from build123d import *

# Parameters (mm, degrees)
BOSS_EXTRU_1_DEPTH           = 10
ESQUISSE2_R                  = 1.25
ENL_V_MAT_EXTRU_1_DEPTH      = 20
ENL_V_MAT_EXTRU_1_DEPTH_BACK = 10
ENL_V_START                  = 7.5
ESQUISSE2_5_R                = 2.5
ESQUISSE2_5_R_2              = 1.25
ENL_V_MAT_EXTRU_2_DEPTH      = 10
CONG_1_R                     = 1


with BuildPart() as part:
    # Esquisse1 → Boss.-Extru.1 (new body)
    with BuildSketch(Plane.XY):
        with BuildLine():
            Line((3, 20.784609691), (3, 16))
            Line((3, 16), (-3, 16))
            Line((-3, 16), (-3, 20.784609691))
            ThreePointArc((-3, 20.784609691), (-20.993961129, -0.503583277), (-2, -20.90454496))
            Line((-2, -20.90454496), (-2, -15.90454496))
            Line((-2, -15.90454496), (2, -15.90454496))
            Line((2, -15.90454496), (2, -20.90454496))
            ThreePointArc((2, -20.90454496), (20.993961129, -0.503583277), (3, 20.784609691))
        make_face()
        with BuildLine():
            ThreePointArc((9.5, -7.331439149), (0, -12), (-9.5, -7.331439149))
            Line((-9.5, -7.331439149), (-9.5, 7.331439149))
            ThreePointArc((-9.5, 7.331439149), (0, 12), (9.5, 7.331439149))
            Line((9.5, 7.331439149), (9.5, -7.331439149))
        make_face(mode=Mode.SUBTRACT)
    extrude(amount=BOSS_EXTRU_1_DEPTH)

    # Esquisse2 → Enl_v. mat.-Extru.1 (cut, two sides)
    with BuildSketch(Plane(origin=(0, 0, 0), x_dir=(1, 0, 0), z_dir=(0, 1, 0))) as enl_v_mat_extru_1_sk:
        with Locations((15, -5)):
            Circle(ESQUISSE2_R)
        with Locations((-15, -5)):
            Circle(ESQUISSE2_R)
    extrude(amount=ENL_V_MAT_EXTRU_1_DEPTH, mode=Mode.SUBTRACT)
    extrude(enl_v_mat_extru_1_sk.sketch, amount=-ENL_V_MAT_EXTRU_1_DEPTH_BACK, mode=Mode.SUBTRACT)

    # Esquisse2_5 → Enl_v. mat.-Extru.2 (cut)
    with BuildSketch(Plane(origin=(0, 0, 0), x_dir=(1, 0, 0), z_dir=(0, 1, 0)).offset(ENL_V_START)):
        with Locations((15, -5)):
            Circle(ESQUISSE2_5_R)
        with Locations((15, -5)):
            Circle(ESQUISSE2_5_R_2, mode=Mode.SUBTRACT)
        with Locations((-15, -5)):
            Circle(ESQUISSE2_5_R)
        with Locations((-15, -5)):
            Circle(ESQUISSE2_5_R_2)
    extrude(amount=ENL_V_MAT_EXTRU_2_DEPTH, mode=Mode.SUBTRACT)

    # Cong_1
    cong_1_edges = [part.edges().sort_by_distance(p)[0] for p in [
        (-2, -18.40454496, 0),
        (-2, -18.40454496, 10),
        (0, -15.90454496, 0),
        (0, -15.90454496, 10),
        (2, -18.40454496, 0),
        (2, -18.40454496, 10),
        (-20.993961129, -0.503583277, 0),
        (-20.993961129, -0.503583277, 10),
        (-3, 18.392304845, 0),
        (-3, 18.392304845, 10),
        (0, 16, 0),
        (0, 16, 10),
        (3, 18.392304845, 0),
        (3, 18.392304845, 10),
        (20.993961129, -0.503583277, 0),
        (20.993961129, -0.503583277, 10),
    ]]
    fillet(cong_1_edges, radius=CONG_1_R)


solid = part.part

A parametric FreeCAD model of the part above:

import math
import FreeCAD as App
import Part
import Sketcher

V = App.Vector


def edges_at(feature, points):
    """Names of the edges that pass closest to the given points."""
    edges = feature.Shape.Edges
    near = lambda p: min(range(len(edges)), key=lambda i: edges[i].distToShape(Part.Vertex(*p))[0])
    return sorted({f"Edge{near(p) + 1}" for p in points})

doc = App.newDocument("Part")
body = doc.addObject("PartDesign::Body", "Body")

sketch1 = body.newObject("Sketcher::SketchObject", "Sketch")
sketch1.AttachmentSupport = (doc.getObject("XY_Plane"), [""])
sketch1.MapMode = "FlatFace"
sketch1.addGeometry([
    Part.LineSegment(V(3, 20.78461, 0), V(3, 16, 0)),
    Part.LineSegment(V(3, 16, 0), V(-3, 16, 0)),
    Part.LineSegment(V(-3, 16, 0), V(-3, 20.78461, 0)),
    Part.ArcOfCircle(Part.Circle(V(0, 0, 0), V(0, 0, 1), 21), math.radians(98.213211), math.radians(264.534976)),
    Part.LineSegment(V(-2, -20.904545, 0), V(-2, -15.904545, 0)),
    Part.LineSegment(V(-2, -15.904545, 0), V(2, -15.904545, 0)),
    Part.LineSegment(V(2, -15.904545, 0), V(2, -20.904545, 0)),
    Part.ArcOfCircle(Part.Circle(V(0, 0, 0), V(0, 0, 1), 21), math.radians(-84.534976), math.radians(81.786789)),
    Part.LineSegment(V(9.5, 7.331439, 0), V(9.5, -7.331439, 0)),
    Part.ArcOfCircle(Part.Circle(V(0, 0, 0), V(0, 0, 1), 12), math.radians(-142.341538), math.radians(-37.658462)),
    Part.LineSegment(V(-9.5, -7.331439, 0), V(-9.5, 7.331439, 0)),
    Part.ArcOfCircle(Part.Circle(V(0, 0, 0), V(0, 0, 1), 12), math.radians(37.658462), math.radians(142.341538)),
], False)
sketch1.addConstraint([
    Sketcher.Constraint("Coincident", 0, 2, 1, 1),
    Sketcher.Constraint("Coincident", 1, 2, 2, 1),
    Sketcher.Constraint("Coincident", 2, 2, 3, 1),
    Sketcher.Constraint("Coincident", 3, 2, 4, 1),
    Sketcher.Constraint("Coincident", 4, 2, 5, 1),
    Sketcher.Constraint("Coincident", 5, 2, 6, 1),
    Sketcher.Constraint("Coincident", 6, 2, 7, 1),
    Sketcher.Constraint("Coincident", 7, 2, 0, 1),
    Sketcher.Constraint("Coincident", 8, 2, 9, 2),
    Sketcher.Constraint("Coincident", 9, 1, 10, 1),
    Sketcher.Constraint("Coincident", 10, 2, 11, 2),
    Sketcher.Constraint("Coincident", 11, 1, 8, 1),
    Sketcher.Constraint("Vertical", 0),
    Sketcher.Constraint("Horizontal", 1),
    Sketcher.Constraint("Vertical", 2),
    Sketcher.Constraint("Vertical", 4),
    Sketcher.Constraint("Horizontal", 5),
    Sketcher.Constraint("Vertical", 6),
    Sketcher.Constraint("Vertical", 8),
    Sketcher.Constraint("Vertical", 10),
    Sketcher.Constraint("Coincident", 3, 3, -1, 1),
    Sketcher.Constraint("Coincident", 7, 3, -1, 1),
    Sketcher.Constraint("Coincident", 9, 3, -1, 1),
    Sketcher.Constraint("Coincident", 11, 3, -1, 1),
    Sketcher.Constraint("Equal", 3, 7),
    Sketcher.Constraint("Equal", 9, 11),
    Sketcher.Constraint("Horizontal", 3, 2, 6, 2),
    Sketcher.Constraint("Horizontal", 2, 2, 7, 2),
    Sketcher.Constraint("Horizontal", 8, 2, 9, 1),
    Sketcher.Constraint("Radius", 3, 21.0),
    Sketcher.Constraint("Radius", 9, 12.0),
    Sketcher.Constraint("DistanceX", 1, 2, 1, 1, 6.0),
    Sketcher.Constraint("DistanceX", 5, 1, 5, 2, 4.0),
    Sketcher.Constraint("DistanceY", 4, 1, 4, 2, 5.0),
    Sketcher.Constraint("DistanceY", -1, 1, 0, 2, 16.0),
    Sketcher.Constraint("DistanceX", -1, 1, 8, 2, 9.5),
])
pad1 = body.newObject("PartDesign::Pad", "Pad")
pad1.Profile = sketch1
pad1.Length = 10

sketch2 = body.newObject("Sketcher::SketchObject", "Sketch001")
sketch2.AttachmentSupport = (doc.getObject("XZ_Plane"), [""])
sketch2.MapMode = "FlatFace"
sketch2.addGeometry([
    Part.Circle(V(15, 5, 0), V(0, 0, 1), 1.25),
    Part.Circle(V(-15, 5, 0), V(0, 0, 1), 1.25),
], False)
sketch2.addConstraint([
    Sketcher.Constraint("Equal", 0, 1),
    Sketcher.Constraint("Symmetric", 0, 3, 1, 3, -2),
    Sketcher.Constraint("Diameter", 0, 2.5),
    Sketcher.Constraint("DistanceX", -1, 1, 0, 3, 15.0),
    Sketcher.Constraint("DistanceY", -1, 1, 0, 3, 5.0),
])
pocket1 = body.newObject("PartDesign::Pocket", "Pocket")
pocket1.Profile = sketch2
pocket1.Type = "TwoLengths"
pocket1.Length = 20
pocket1.Length2 = 10

sketch3 = body.newObject("Sketcher::SketchObject", "Sketch002")
sketch3.AttachmentSupport = (doc.getObject("XZ_Plane"), [""])
sketch3.MapMode = "FlatFace"
sketch3.AttachmentOffset = App.Placement(V(0, 0, -7.5), App.Rotation())
sketch3.addGeometry([
    Part.Circle(V(15, 5, 0), V(0, 0, 1), 2.5),
    Part.Circle(V(15, 5, 0), V(0, 0, 1), 1.25),
    Part.Circle(V(-15, 5, 0), V(0, 0, 1), 2.5),
], False)
sketch3.addConstraint([
    Sketcher.Constraint("Coincident", 1, 3, 0, 3),
    Sketcher.Constraint("Equal", 0, 2),
    Sketcher.Constraint("Symmetric", 0, 3, 2, 3, -2),
    Sketcher.Constraint("Diameter", 0, 5.0),
    Sketcher.Constraint("Diameter", 1, 2.5),
    Sketcher.Constraint("DistanceX", -1, 1, 0, 3, 15.0),
    Sketcher.Constraint("DistanceY", -1, 1, 0, 3, 5.0),
])
pocket2 = body.newObject("PartDesign::Pocket", "Pocket001")
pocket2.Profile = sketch3
pocket2.Length = 10
doc.recompute()

fillet = body.newObject("PartDesign::Fillet", "Fillet")
fillet.Base = (pocket2, edges_at(pocket2, [
    (-2, -18.405, 0),
    (-2, -18.405, 10),
    (0, -15.905, 0),
    (0, -15.905, 10),
    (2, -18.405, 0),
    (2, -18.405, 10),
    (-20.994, -0.504, 0),
    (-20.994, -0.504, 10),
    (-3, 18.392, 0),
    (-3, 18.392, 10),
    (0, 16, 0),
    (0, 16, 10),
    (3, 18.392, 0),
    (3, 18.392, 10),
    (20.994, -0.504, 0),
    (20.994, -0.504, 10),
]))
fillet.Radius = 1

doc.recompute()
